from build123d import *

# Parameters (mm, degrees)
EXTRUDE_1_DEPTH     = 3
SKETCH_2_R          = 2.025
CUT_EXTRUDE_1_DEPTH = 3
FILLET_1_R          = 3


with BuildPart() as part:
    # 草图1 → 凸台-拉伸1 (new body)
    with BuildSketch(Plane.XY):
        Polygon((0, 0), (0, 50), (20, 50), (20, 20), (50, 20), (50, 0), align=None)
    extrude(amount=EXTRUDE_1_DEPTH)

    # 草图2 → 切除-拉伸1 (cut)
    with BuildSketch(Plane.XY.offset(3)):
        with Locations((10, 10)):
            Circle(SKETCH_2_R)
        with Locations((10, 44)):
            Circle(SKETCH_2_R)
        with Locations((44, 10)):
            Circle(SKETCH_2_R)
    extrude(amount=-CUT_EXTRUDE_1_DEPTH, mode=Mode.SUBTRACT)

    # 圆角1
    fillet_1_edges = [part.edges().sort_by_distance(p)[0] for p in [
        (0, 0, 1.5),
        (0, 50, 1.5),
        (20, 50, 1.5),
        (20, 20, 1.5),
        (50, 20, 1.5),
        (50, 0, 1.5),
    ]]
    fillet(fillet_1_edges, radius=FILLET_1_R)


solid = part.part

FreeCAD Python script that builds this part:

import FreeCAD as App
import Part
import Sketcher
from FreeCAD import Vector


def edges_at(feature, points):
    """Names of the edges that pass closest to the given points."""
    edges = feature.Shape.Edges
    near = lambda p: min(range(len(edges)), key=lambda i: edges[i].distToShape(Part.Vertex(*p))[0])
    return sorted({f"Edge{near(p) + 1}" for p in points})

doc = App.newDocument("Part")
body = doc.addObject("PartDesign::Body", "Body")

# Sketch on XY plane
sketch1 = doc.addObject("Sketcher::SketchObject", "Sketch")
body.addObject(sketch1)
sketch1.AttachmentSupport = (doc.XY_Plane, [""])
sketch1.MapMode = "FlatFace"
sketch1.addGeometry([
    Part.LineSegment(Vector(0, 50, 0), Vector(0, 0, 0)),  # 0
    Part.LineSegment(Vector(0, 0, 0), Vector(50, 0, 0)),  # 1
    Part.LineSegment(Vector(50, 0, 0), Vector(50, 20, 0)),  # 2
    Part.LineSegment(Vector(50, 20, 0), Vector(20, 20, 0)),  # 3
    Part.LineSegment(Vector(20, 20, 0), Vector(20, 50, 0)),  # 4
    Part.LineSegment(Vector(20, 50, 0), Vector(0, 50, 0)),  # 5
], False)
sketch1.addConstraint([
    Sketcher.Constraint("Coincident", 0, 2, 1, 1),
    Sketcher.Constraint("Coincident", 1, 2, 2, 1),
    Sketcher.Constraint("Coincident", 2, 2, 3, 1),
    Sketcher.Constraint("Coincident", 3, 2, 4, 1),
    Sketcher.Constraint("Coincident", 4, 2, 5, 1),
    Sketcher.Constraint("Coincident", 5, 2, 0, 1),
    Sketcher.Constraint("Vertical", 0),
    Sketcher.Constraint("Horizontal", 1),
    Sketcher.Constraint("Vertical", 2),
    Sketcher.Constraint("Horizontal", 3),
    Sketcher.Constraint("Vertical", 4),
    Sketcher.Constraint("Horizontal", 5),
    Sketcher.Constraint("Coincident", 0, 2, -1, 1),
    Sketcher.Constraint("Equal", 1, 0),
    Sketcher.Constraint("Equal", 5, 2),
    Sketcher.Constraint("DistanceX", 1, 1, 1, 2, 50.0),
    Sketcher.Constraint("DistanceX", 3, 2, 3, 1, 30.0),
])
pad1 = doc.addObject("PartDesign::Pad", "Pad")
body.addObject(pad1)
pad1.Profile = sketch1
pad1.Length = 3

# Sketch on XY plane
sketch2 = doc.addObject("Sketcher::SketchObject", "Sketch001")
body.addObject(sketch2)
sketch2.AttachmentSupport = (doc.XY_Plane, [""])
sketch2.MapMode = "FlatFace"
sketch2.AttachmentOffset = App.Placement(Vector(0, 0, 3), App.Rotation())
sketch2.addGeometry([
    Part.Circle(Vector(10, 10, 0), Vector(0, 0, 1), 2.025),
    Part.Circle(Vector(10, 44, 0), Vector(0, 0, 1), 2.025),
    Part.Circle(Vector(44, 10, 0), Vector(0, 0, 1), 2.025),
], False)
sketch2.addConstraint([
    Sketcher.Constraint("Equal", 0, 1),
    Sketcher.Constraint("Equal", 1, 2),
    Sketcher.Constraint("Horizontal", 0, 3, 2, 3),
    Sketcher.Constraint("Vertical", 0, 3, 1, 3),
    Sketcher.Constraint("Diameter", 0, 4.05),
    Sketcher.Constraint("DistanceX", -1, 1, 0, 3, 10.0),
    Sketcher.Constraint("DistanceY", -1, 1, 0, 3, 10.0),
    Sketcher.Constraint("DistanceY", -1, 1, 1, 3, 44.0),
    Sketcher.Constraint("DistanceX", -1, 1, 2, 3, 44.0),
])
pocket1 = doc.addObject("PartDesign::Pocket", "Pocket")
body.addObject(pocket1)
pocket1.Profile = sketch2
pocket1.Length = 3
doc.recompute()

fillet = doc.addObject("PartDesign::Fillet", "Fillet")
body.addObject(fillet)
fillet.Base = (pocket1, edges_at(pocket1, [
    (0, 0, 1.5),
    (0, 50, 1.5),
    (20, 50, 1.5),
    (20, 20, 1.5),
    (50, 20, 1.5),
    (50, 0, 1.5),
]))
fillet.Radius = 3

doc.recompute()
